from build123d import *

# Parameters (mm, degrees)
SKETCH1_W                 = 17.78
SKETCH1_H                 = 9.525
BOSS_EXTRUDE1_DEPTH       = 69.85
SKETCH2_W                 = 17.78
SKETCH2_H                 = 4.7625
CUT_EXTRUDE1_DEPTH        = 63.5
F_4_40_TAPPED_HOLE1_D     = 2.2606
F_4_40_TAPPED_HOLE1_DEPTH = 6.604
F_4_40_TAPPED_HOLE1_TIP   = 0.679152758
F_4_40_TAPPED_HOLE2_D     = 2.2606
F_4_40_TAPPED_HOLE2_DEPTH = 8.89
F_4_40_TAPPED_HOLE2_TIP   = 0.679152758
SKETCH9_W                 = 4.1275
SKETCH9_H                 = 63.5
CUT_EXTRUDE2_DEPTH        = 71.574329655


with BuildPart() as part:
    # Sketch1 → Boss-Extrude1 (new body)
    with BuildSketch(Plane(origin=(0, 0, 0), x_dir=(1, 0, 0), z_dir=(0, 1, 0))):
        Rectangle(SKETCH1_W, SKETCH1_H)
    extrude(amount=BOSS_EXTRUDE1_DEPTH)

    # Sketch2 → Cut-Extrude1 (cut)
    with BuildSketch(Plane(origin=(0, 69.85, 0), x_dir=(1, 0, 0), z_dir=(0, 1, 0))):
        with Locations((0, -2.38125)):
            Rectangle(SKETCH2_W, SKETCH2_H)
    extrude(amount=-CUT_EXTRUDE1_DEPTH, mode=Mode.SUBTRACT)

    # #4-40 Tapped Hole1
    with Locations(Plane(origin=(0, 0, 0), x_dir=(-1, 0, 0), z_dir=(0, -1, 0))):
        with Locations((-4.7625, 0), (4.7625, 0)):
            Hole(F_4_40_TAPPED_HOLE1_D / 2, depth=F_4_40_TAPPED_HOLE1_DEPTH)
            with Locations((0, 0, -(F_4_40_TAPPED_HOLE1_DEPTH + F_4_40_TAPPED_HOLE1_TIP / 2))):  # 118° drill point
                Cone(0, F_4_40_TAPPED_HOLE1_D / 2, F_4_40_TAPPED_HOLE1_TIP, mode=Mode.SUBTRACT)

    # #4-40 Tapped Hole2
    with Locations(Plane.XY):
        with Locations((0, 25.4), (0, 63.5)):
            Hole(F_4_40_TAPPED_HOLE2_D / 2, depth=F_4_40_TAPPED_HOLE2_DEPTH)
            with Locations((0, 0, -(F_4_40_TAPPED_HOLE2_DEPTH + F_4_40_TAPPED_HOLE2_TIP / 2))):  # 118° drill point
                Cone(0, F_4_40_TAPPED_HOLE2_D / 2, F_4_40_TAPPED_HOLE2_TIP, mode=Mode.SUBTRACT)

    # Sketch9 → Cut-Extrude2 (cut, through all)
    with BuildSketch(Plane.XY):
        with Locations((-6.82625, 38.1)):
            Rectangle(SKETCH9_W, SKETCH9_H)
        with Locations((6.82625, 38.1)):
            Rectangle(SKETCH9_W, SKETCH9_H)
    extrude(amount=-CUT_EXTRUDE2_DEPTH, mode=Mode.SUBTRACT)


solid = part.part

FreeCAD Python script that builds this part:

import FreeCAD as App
import Part
import Sketcher

V = App.Vector
Q = App.Units.Quantity

doc = App.newDocument("Part")
params = doc.addObject("Spreadsheet::Sheet", "Params")
for row, (alias, value) in enumerate([
    ("sketch1_width", "0.7 in"),
    ("sketch1_height", "0.375 in"),
    ("pad1_length", "2.75 in"),
    ("sketch2_width", "0.7 in"),
    ("sketch2_height", "0.1875 in"),
    ("pocket1_length", "2.5 in"),
    ("sketch3_diameter", "0.089 in"),
    ("hole_diameter", "0.089 in"),
    ("hole_depth", "0.26 in"),
    ("sketch4_diameter", "0.089 in"),
    ("hole2_diameter", "0.089 in"),
    ("hole2_depth", "0.35 in"),
    ("sketch5_height", "2.5 in"),
], start=1):
    params.set(f"A{row}", alias)
    params.set(f"B{row}", "=" + value)
    params.setAlias(f"B{row}", alias)

body = doc.addObject("PartDesign::Body", "Body")

sketch1 = body.newObject("Sketcher::SketchObject", "Sketch")
sketch1.AttachmentSupport = (doc.getObject("XZ_Plane"), [""])
sketch1.MapMode = "FlatFace"
sketch1.addGeometry(Part.LineSegment(V(-8.89, -4.7625, 0), V(-8.89, 4.7625, 0)), False)
sketch1.addGeometry(Part.LineSegment(V(-8.89, 4.7625, 0), V(8.89, 4.7625, 0)), False)
sketch1.addGeometry(Part.LineSegment(V(8.89, 4.7625, 0), V(8.89, -4.7625, 0)), False)
sketch1.addGeometry(Part.LineSegment(V(8.89, -4.7625, 0), V(-8.89, -4.7625, 0)), False)
sketch1.addConstraint(Sketcher.Constraint("Coincident", 0, 2, 1, 1))
sketch1.addConstraint(Sketcher.Constraint("Coincident", 1, 2, 2, 1))
sketch1.addConstraint(Sketcher.Constraint("Coincident", 2, 2, 3, 1))
sketch1.addConstraint(Sketcher.Constraint("Coincident", 3, 2, 0, 1))
sketch1.addConstraint(Sketcher.Constraint("Vertical", 0))
sketch1.addConstraint(Sketcher.Constraint("Horizontal", 1))
sketch1.addConstraint(Sketcher.Constraint("Vertical", 2))
sketch1.addConstraint(Sketcher.Constraint("Horizontal", 3))
sketch1.addConstraint(Sketcher.Constraint("Symmetric", 0, 2, 2, 2, -1, 1))
sketch1.addConstraint(Sketcher.Constraint("DistanceX", 1, 1, 1, 2, Q("0.7 in")))
sketch1.addConstraint(Sketcher.Constraint("DistanceY", 0, 1, 0, 2, Q("0.375 in")))
sketch1.setExpression("Constraints[9]", "Params.sketch1_width")
sketch1.setExpression("Constraints[10]", "Params.sketch1_height")
pad1 = body.newObject("PartDesign::Pad", "Pad")
pad1.Profile = sketch1
pad1.setExpression("Length", "Params.pad1_length")
pad1.Reversed = True

sketch2 = body.newObject("Sketcher::SketchObject", "Sketch001")
sketch2.AttachmentSupport = (doc.getObject("XZ_Plane"), [""])
sketch2.MapMode = "FlatFace"
sketch2.AttachmentOffset = App.Placement(V(0, 0, -2.75 * 25.4), App.Rotation())
sketch2.addGeometry(Part.LineSegment(V(-8.89, 0, 0), V(-8.89, 4.7625, 0)), False)
sketch2.addGeometry(Part.LineSegment(V(-8.89, 4.7625, 0), V(8.89, 4.7625, 0)), False)
sketch2.addGeometry(Part.LineSegment(V(8.89, 4.7625, 0), V(8.89, 0, 0)), False)
sketch2.addGeometry(Part.LineSegment(V(8.89, 0, 0), V(-8.89, 0, 0)), False)
sketch2.addConstraint(Sketcher.Constraint("Coincident", 0, 2, 1, 1))
sketch2.addConstraint(Sketcher.Constraint("Coincident", 1, 2, 2, 1))
sketch2.addConstraint(Sketcher.Constraint("Coincident", 2, 2, 3, 1))
sketch2.addConstraint(Sketcher.Constraint("Coincident", 3, 2, 0, 1))
sketch2.addConstraint(Sketcher.Constraint("Vertical", 0))
sketch2.addConstraint(Sketcher.Constraint("Horizontal", 1))
sketch2.addConstraint(Sketcher.Constraint("Vertical", 2))
sketch2.addConstraint(Sketcher.Constraint("Horizontal", 3))
sketch2.addConstraint(Sketcher.Constraint("Symmetric", 2, 2, 3, 2, -1, 1))
sketch2.addConstraint(Sketcher.Constraint("DistanceX", 1, 1, 1, 2, Q("0.7 in")))
sketch2.addConstraint(Sketcher.Constraint("DistanceY", 0, 1, 0, 2, Q("0.1875 in")))
sketch2.setExpression("Constraints[9]", "Params.sketch2_width")
sketch2.setExpression("Constraints[10]", "Params.sketch2_height")
pocket1 = body.newObject("PartDesign::Pocket", "Pocket")
pocket1.Profile = sketch2
pocket1.setExpression("Length", "Params.pocket1_length")
pocket1.Reversed = True

sketch3 = body.newObject("Sketcher::SketchObject", "Sketch002")
sketch3.AttachmentSupport = (doc.getObject("XZ_Plane"), [""])
sketch3.MapMode = "FlatFace"
sketch3.addGeometry(Part.Circle(V(4.7625, 0, 0), V(0, 0, 1), 1.1303), False)
sketch3.addGeometry(Part.Circle(V(-4.7625, 0, 0), V(0, 0, 1), 1.1303), False)
sketch3.addConstraint(Sketcher.Constraint("Equal", 0, 1))
sketch3.addConstraint(Sketcher.Constraint("Symmetric", 0, 3, 1, 3, -1, 1))
sketch3.addConstraint(Sketcher.Constraint("PointOnObject", 0, 3, -1))
sketch3.addConstraint(Sketcher.Constraint("Diameter", 0, Q("0.089 in")))
sketch3.addConstraint(Sketcher.Constraint("DistanceX", -1, 1, 0, 3, Q("0.1875 in")))
sketch3.setExpression("Constraints[3]", "Params.sketch3_diameter")
doc.recompute()
hole = body.newObject("PartDesign::Hole", "Hole")
hole.Profile = sketch3
hole.ThreadType = "None"
hole.setExpression("Diameter", "Params.hole_diameter")
hole.DepthType = "Dimension"
hole.setExpression("Depth", "Params.hole_depth")
hole.DrillPoint = "Angled"
hole.DrillPointAngle = 118

sketch4 = body.newObject("Sketcher::SketchObject", "Sketch003")
sketch4.AttachmentSupport = (doc.getObject("XY_Plane"), [""])
sketch4.MapMode = "FlatFace"
sketch4.addGeometry(Part.Circle(V(0, 25.4, 0), V(0, 0, 1), 1.1303), False)
sketch4.addGeometry(Part.Circle(V(0, 63.5, 0), V(0, 0, 1), 1.1303), False)
sketch4.addConstraint(Sketcher.Constraint("Equal", 0, 1))
sketch4.addConstraint(Sketcher.Constraint("PointOnObject", 0, 3, -2))
sketch4.addConstraint(Sketcher.Constraint("PointOnObject", 1, 3, -2))
sketch4.addConstraint(Sketcher.Constraint("Diameter", 0, Q("0.089 in")))
sketch4.addConstraint(Sketcher.Constraint("DistanceY", -1, 1, 0, 3, Q("1 in")))
sketch4.addConstraint(Sketcher.Constraint("DistanceY", -1, 1, 1, 3, Q("2.5 in")))
sketch4.setExpression("Constraints[3]", "Params.sketch4_diameter")
doc.recompute()
hole2 = body.newObject("PartDesign::Hole", "Hole001")
hole2.Profile = sketch4
hole2.ThreadType = "None"
hole2.setExpression("Diameter", "Params.hole2_diameter")
hole2.DepthType = "Dimension"
hole2.setExpression("Depth", "Params.hole2_depth")
hole2.DrillPoint = "Angled"
hole2.DrillPointAngle = 118

sketch5 = body.newObject("Sketcher::SketchObject", "Sketch004")
sketch5.AttachmentSupport = (doc.getObject("XY_Plane"), [""])
sketch5.MapMode = "FlatFace"
sketch5.addGeometry(Part.LineSegment(V(-8.89, 69.85, 0), V(-8.89, 6.35, 0)), False)
sketch5.addGeometry(Part.LineSegment(V(-8.89, 6.35, 0), V(-4.7625, 6.35, 0)), False)
sketch5.addGeometry(Part.LineSegment(V(-4.7625, 6.35, 0), V(-4.7625, 69.85, 0)), False)
sketch5.addGeometry(Part.LineSegment(V(-4.7625, 69.85, 0), V(-8.89, 69.85, 0)), False)
sketch5.addGeometry(Part.LineSegment(V(4.7625, 69.85, 0), V(4.7625, 6.35, 0)), False)
sketch5.addGeometry(Part.LineSegment(V(4.7625, 6.35, 0), V(8.89, 6.35, 0)), False)
sketch5.addGeometry(Part.LineSegment(V(8.89, 6.35, 0), V(8.89, 69.85, 0)), False)
sketch5.addGeometry(Part.LineSegment(V(8.89, 69.85, 0), V(4.7625, 69.85, 0)), False)
sketch5.addConstraint(Sketcher.Constraint("Coincident", 0, 2, 1, 1))
sketch5.addConstraint(Sketcher.Constraint("Coincident", 1, 2, 2, 1))
sketch5.addConstraint(Sketcher.Constraint("Coincident", 2, 2, 3, 1))
sketch5.addConstraint(Sketcher.Constraint("Coincident", 3, 2, 0, 1))
sketch5.addConstraint(Sketcher.Constraint("Coincident", 4, 2, 5, 1))
sketch5.addConstraint(Sketcher.Constraint("Coincident", 5, 2, 6, 1))
sketch5.addConstraint(Sketcher.Constraint("Coincident", 6, 2, 7, 1))
sketch5.addConstraint(Sketcher.Constraint("Coincident", 7, 2, 4, 1))
sketch5.addConstraint(Sketcher.Constraint("Vertical", 0))
sketch5.addConstraint(Sketcher.Constraint("Horizontal", 1))
sketch5.addConstraint(Sketcher.Constraint("Vertical", 2))
sketch5.addConstraint(Sketcher.Constraint("Horizontal", 3))
sketch5.addConstraint(Sketcher.Constraint("Vertical", 4))
sketch5.addConstraint(Sketcher.Constraint("Horizontal", 5))
sketch5.addConstraint(Sketcher.Constraint("Vertical", 6))
sketch5.addConstraint(Sketcher.Constraint("Horizontal", 7))
sketch5.addConstraint(Sketcher.Constraint("Symmetric", 1, 2, 4, 2, -2))
sketch5.addConstraint(Sketcher.Constraint("Symmetric", 3, 2, 6, 2, -2))
sketch5.addConstraint(Sketcher.Constraint("DistanceY", 0, 2, 0, 1, Q("2.5 in")))
sketch5.addConstraint(Sketcher.Constraint("DistanceX", 0, 2, 5, 2, Q("0.7 in")))
sketch5.addConstraint(Sketcher.Constraint("DistanceY", -1, 1, 0, 2, Q("0.25 in")))
sketch5.addConstraint(Sketcher.Constraint("DistanceX", 1, 1, 1, 2, Q("0.1625 in")))
sketch5.setExpression("Constraints[18]", "Params.sketch5_height")
pocket2 = body.newObject("PartDesign::Pocket", "Pocket001")
pocket2.Profile = sketch5
pocket2.Type = "ThroughAll"

doc.recompute()
